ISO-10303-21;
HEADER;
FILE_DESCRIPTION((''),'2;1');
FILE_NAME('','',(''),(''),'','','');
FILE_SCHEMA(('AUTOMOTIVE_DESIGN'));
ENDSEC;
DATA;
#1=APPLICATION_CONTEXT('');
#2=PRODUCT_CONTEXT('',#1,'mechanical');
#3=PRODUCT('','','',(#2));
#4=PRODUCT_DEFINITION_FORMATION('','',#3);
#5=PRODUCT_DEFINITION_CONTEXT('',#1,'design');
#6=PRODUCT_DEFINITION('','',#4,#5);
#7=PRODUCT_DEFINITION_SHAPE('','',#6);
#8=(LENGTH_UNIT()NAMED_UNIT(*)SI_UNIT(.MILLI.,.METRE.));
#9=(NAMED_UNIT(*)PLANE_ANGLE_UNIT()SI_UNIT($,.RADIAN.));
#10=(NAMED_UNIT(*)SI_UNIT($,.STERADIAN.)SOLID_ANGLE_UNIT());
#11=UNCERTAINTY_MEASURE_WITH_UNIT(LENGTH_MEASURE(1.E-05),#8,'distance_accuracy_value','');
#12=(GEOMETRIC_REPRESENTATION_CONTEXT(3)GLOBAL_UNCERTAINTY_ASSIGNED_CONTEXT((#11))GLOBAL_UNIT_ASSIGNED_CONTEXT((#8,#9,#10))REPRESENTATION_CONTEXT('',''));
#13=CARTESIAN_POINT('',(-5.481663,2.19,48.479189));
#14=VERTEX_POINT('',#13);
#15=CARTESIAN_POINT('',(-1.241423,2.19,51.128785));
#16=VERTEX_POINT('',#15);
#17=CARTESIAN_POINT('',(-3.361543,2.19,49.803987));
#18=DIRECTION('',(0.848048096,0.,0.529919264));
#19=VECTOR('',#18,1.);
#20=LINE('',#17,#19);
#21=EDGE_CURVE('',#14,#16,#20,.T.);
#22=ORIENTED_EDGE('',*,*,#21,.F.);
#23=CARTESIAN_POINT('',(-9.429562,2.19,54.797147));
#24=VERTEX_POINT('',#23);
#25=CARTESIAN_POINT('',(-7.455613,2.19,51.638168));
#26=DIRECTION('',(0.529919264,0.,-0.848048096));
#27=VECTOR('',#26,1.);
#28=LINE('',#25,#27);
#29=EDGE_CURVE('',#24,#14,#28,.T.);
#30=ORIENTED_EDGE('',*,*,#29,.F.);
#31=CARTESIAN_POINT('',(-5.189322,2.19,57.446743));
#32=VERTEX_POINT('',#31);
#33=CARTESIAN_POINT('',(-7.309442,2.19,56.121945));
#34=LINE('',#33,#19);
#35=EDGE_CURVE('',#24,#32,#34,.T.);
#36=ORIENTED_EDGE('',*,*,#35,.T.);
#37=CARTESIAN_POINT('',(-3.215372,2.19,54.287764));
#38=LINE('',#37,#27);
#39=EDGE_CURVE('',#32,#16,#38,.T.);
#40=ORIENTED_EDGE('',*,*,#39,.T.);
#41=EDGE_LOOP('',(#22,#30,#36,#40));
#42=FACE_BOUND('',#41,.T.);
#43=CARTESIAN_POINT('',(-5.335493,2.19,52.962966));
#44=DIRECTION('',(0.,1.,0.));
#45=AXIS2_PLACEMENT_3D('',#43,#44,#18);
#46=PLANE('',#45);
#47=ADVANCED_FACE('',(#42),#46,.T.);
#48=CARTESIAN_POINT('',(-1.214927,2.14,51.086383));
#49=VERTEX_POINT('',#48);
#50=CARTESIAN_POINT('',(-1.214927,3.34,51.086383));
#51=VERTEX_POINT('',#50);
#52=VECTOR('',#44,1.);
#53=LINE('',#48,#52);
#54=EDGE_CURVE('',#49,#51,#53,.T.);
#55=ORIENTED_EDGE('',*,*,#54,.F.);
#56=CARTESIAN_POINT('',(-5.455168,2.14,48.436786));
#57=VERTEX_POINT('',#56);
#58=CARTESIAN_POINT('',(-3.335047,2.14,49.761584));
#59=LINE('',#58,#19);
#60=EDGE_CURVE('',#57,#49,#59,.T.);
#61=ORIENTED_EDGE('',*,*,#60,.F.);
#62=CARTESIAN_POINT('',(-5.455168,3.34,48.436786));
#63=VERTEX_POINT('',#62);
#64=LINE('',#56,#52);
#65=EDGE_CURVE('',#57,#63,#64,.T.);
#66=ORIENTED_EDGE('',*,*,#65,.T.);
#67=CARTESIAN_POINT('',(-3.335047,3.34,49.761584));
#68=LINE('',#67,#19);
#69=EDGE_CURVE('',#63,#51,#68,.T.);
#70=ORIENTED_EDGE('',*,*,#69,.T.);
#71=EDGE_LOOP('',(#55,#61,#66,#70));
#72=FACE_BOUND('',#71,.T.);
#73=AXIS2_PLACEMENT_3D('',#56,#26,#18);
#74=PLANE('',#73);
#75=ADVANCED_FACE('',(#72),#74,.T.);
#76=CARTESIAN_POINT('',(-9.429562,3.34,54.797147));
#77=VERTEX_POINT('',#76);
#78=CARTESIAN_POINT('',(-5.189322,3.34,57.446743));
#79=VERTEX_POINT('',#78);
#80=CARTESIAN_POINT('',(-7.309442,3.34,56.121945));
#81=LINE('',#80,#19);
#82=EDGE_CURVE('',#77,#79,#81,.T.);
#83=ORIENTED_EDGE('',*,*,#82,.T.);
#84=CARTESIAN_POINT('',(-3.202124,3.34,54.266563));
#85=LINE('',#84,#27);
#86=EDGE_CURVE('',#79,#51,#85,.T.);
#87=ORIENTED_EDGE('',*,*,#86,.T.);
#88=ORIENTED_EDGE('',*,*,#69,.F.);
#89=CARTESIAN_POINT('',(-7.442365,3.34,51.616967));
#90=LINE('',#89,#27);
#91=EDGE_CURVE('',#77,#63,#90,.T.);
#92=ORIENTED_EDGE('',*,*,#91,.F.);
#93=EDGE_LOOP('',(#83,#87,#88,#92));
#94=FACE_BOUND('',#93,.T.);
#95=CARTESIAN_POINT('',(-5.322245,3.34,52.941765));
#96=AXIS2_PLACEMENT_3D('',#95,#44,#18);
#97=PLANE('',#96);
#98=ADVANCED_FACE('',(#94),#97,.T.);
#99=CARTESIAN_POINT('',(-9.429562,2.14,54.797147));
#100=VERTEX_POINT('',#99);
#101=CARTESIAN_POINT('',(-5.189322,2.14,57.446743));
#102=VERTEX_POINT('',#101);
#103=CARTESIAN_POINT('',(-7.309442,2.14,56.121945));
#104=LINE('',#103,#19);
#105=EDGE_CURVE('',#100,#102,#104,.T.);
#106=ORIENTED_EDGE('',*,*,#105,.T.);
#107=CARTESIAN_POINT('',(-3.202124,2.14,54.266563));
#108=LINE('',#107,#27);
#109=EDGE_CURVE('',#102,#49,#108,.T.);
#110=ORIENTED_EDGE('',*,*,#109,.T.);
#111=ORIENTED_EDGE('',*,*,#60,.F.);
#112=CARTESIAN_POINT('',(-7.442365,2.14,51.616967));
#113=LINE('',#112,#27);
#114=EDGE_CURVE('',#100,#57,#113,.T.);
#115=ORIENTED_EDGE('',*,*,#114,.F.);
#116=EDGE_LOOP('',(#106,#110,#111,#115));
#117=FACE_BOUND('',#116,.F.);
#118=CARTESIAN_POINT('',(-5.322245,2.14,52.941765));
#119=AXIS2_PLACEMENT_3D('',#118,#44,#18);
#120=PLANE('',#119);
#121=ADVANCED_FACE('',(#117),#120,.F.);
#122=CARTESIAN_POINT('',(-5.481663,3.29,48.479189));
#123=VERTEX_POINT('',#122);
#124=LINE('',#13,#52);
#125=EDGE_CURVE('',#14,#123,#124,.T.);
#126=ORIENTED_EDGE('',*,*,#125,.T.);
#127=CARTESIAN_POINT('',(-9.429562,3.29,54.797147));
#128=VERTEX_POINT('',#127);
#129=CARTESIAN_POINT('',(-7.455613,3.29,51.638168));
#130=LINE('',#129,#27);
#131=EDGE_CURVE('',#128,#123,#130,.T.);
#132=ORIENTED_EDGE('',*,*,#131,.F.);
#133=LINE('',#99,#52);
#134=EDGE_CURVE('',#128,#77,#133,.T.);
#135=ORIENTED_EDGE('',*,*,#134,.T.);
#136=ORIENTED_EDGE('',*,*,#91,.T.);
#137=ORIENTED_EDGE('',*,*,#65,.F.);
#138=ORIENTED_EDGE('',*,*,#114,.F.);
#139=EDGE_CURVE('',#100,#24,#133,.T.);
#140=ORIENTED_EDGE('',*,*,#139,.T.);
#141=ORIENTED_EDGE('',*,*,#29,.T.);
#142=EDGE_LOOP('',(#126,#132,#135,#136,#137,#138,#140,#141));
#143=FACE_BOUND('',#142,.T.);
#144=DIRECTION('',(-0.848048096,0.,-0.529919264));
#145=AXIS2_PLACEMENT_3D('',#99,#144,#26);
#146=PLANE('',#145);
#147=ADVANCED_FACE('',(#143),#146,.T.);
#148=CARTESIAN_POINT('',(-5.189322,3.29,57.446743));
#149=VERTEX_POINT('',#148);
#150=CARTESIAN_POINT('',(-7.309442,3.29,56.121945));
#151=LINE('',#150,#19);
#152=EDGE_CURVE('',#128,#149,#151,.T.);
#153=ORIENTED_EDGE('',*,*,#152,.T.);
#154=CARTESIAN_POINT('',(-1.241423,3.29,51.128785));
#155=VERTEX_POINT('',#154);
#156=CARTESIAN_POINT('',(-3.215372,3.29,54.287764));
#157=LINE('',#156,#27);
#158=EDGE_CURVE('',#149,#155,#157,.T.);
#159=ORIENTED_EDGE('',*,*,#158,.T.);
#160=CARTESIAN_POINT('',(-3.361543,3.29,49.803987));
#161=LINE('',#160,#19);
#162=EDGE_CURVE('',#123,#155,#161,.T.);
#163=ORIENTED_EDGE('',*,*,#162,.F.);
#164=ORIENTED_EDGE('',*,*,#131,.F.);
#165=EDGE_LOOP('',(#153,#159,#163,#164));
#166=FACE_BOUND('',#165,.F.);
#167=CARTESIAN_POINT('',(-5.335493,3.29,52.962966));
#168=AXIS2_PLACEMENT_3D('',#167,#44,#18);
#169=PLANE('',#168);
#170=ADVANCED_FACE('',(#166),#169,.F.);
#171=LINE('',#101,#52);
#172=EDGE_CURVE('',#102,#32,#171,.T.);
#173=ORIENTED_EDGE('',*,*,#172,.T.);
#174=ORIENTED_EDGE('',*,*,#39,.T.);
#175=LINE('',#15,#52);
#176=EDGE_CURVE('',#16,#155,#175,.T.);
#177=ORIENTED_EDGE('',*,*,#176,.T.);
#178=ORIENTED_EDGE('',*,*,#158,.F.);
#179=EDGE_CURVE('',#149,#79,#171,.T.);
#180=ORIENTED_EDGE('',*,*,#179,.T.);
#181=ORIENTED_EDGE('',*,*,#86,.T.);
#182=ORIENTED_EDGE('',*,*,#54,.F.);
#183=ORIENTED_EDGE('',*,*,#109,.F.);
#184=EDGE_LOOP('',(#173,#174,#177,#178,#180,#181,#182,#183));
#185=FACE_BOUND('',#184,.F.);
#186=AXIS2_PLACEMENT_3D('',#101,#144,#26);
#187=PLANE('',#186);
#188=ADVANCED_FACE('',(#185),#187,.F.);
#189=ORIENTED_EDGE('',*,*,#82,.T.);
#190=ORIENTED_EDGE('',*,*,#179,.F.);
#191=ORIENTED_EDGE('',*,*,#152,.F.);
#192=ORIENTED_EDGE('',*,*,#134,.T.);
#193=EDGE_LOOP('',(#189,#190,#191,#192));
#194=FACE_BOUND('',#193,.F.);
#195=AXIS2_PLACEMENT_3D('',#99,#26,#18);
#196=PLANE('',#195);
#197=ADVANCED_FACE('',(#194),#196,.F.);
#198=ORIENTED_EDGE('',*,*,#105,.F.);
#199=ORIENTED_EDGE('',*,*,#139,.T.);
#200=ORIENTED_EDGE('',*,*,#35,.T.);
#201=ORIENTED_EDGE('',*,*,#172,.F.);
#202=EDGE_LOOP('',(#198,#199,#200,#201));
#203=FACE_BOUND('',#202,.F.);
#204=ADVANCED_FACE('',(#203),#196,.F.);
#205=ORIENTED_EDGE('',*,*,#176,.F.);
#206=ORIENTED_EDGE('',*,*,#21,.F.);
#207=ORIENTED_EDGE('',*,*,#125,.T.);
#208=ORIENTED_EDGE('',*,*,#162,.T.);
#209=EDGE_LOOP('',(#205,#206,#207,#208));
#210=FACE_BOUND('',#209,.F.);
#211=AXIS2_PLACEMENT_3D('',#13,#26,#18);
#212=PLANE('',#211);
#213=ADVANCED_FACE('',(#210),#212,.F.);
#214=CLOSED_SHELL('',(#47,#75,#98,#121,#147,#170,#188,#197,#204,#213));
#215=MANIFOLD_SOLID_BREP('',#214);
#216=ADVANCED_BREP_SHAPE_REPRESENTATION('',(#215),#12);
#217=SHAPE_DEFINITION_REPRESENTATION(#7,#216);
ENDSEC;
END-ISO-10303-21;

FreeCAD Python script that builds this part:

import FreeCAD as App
import Part
import Sketcher
Q = App.Units.Quantity

doc = App.newDocument("Part")
body = doc.addObject("PartDesign::Body", "Body")

sketch1 = body.newObject("Sketcher::SketchObject", "Sketch")
sketch1.AttachmentSupport = (doc.getObject("XY_Plane"), [""])
sketch1.MapMode = "FlatFace"
sketch1.AttachmentOffset = App.Placement(App.Vector(0, 0, 0.05), App.Rotation())
sketch1.addGeometry(Part.LineSegment(App.Vector(0, 7, 0), App.Vector(0, 0, 0)), False)
sketch1.addGeometry(Part.LineSegment(App.Vector(0, 0, 0), App.Vector(5, 0, 0)), False)
sketch1.addGeometry(Part.LineSegment(App.Vector(5, 0, 0), App.Vector(5, 7, 0)), False)
sketch1.addGeometry(Part.LineSegment(App.Vector(5, 7, 0), App.Vector(0, 7, 0)), False)
sketch1.addConstraint(Sketcher.Constraint("Coincident", 0, 2, 1, 1))
sketch1.addConstraint(Sketcher.Constraint("Coincident", 1, 2, 2, 1))
sketch1.addConstraint(Sketcher.Constraint("Coincident", 2, 2, 3, 1))
sketch1.addConstraint(Sketcher.Constraint("Coincident", 3, 2, 0, 1))
sketch1.addConstraint(Sketcher.Constraint("Vertical", 0))
sketch1.addConstraint(Sketcher.Constraint("Horizontal", 1))
sketch1.addConstraint(Sketcher.Constraint("Vertical", 2))
sketch1.addConstraint(Sketcher.Constraint("Horizontal", 3))
sketch1.addConstraint(Sketcher.Constraint("Coincident", 0, 2, -1, 1))
sketch1.addConstraint(Sketcher.Constraint("DistanceX", 1, 1, 1, 2, Q("5 mm")))
sketch1.addConstraint(Sketcher.Constraint("DistanceY", 0, 2, 0, 1, Q("7.45 mm")))
pad1 = body.newObject("PartDesign::Pad", "Pad")
pad1.Profile = sketch1
pad1.Length = 1.1
body2 = doc.addObject("PartDesign::Body", "Body001")

sketch2 = body2.newObject("Sketcher::SketchObject", "Sketch001")
sketch2.AttachmentSupport = (doc.getObject("XY_Plane001"), [""])
sketch2.MapMode = "FlatFace"
sketch2.addGeometry(Part.LineSegment(App.Vector(0, 8, 0), App.Vector(0, 0, 0)), False)
sketch2.addGeometry(Part.LineSegment(App.Vector(0, 0, 0), App.Vector(5, 0, 0)), False)
sketch2.addGeometry(Part.LineSegment(App.Vector(5, 0, 0), App.Vector(5, 8, 0)), False)
sketch2.addGeometry(Part.LineSegment(App.Vector(5, 8, 0), App.Vector(0, 8, 0)), False)
sketch2.addConstraint(Sketcher.Constraint("Coincident", 0, 2, 1, 1))
sketch2.addConstraint(Sketcher.Constraint("Coincident", 1, 2, 2, 1))
sketch2.addConstraint(Sketcher.Constraint("Coincident", 2, 2, 3, 1))
sketch2.addConstraint(Sketcher.Constraint("Coincident", 3, 2, 0, 1))
sketch2.addConstraint(Sketcher.Constraint("Vertical", 0))
sketch2.addConstraint(Sketcher.Constraint("Horizontal", 1))
sketch2.addConstraint(Sketcher.Constraint("Vertical", 2))
sketch2.addConstraint(Sketcher.Constraint("Horizontal", 3))
sketch2.addConstraint(Sketcher.Constraint("Coincident", 0, 2, -1, 1))
sketch2.addConstraint(Sketcher.Constraint("DistanceX", 1, 1, 1, 2, Q("5 mm")))
sketch2.addConstraint(Sketcher.Constraint("DistanceY", 0, 2, 0, 1, Q("7.5 mm")))
pad2 = body2.newObject("PartDesign::Pad", "Pad001")
pad2.Profile = sketch2
pad2.Length = 1.2
doc.recompute()

boolean = body2.newObject("PartDesign::Boolean", "Boolean")
boolean.Type = "Cut"
boolean.addObjects([body])
body3 = doc.addObject("PartDesign::Body", "Body002")
doc.recompute()

body2.Placement = App.Placement(App.Vector(0, 0, 0), App.Rotation(App.Vector(1, 0, 0), 270))
boolean2 = body3.newObject("PartDesign::Boolean", "Boolean001")
boolean2.Type = "Fuse"
boolean2.addObjects([body2])
body4 = doc.addObject("PartDesign::Body", "Body003")
doc.recompute()

body3.Placement = App.Placement(App.Vector(0, 0, 0), App.Rotation(App.Vector(0, 1, 0), 328))
boolean3 = body4.newObject("PartDesign::Boolean", "Boolean002")
boolean3.Type = "Fuse"
boolean3.addObjects([body3])
body5 = doc.addObject("PartDesign::Body", "Body004")
doc.recompute()

body4.Placement = App.Placement(App.Vector(-9.429562, 2.14, 54.797147), App.Rotation(App.Vector(0, 0, 1), 0))
boolean4 = body5.newObject("PartDesign::Boolean", "Boolean003")
boolean4.Type = "Fuse"
boolean4.addObjects([body4])

doc.recompute()
